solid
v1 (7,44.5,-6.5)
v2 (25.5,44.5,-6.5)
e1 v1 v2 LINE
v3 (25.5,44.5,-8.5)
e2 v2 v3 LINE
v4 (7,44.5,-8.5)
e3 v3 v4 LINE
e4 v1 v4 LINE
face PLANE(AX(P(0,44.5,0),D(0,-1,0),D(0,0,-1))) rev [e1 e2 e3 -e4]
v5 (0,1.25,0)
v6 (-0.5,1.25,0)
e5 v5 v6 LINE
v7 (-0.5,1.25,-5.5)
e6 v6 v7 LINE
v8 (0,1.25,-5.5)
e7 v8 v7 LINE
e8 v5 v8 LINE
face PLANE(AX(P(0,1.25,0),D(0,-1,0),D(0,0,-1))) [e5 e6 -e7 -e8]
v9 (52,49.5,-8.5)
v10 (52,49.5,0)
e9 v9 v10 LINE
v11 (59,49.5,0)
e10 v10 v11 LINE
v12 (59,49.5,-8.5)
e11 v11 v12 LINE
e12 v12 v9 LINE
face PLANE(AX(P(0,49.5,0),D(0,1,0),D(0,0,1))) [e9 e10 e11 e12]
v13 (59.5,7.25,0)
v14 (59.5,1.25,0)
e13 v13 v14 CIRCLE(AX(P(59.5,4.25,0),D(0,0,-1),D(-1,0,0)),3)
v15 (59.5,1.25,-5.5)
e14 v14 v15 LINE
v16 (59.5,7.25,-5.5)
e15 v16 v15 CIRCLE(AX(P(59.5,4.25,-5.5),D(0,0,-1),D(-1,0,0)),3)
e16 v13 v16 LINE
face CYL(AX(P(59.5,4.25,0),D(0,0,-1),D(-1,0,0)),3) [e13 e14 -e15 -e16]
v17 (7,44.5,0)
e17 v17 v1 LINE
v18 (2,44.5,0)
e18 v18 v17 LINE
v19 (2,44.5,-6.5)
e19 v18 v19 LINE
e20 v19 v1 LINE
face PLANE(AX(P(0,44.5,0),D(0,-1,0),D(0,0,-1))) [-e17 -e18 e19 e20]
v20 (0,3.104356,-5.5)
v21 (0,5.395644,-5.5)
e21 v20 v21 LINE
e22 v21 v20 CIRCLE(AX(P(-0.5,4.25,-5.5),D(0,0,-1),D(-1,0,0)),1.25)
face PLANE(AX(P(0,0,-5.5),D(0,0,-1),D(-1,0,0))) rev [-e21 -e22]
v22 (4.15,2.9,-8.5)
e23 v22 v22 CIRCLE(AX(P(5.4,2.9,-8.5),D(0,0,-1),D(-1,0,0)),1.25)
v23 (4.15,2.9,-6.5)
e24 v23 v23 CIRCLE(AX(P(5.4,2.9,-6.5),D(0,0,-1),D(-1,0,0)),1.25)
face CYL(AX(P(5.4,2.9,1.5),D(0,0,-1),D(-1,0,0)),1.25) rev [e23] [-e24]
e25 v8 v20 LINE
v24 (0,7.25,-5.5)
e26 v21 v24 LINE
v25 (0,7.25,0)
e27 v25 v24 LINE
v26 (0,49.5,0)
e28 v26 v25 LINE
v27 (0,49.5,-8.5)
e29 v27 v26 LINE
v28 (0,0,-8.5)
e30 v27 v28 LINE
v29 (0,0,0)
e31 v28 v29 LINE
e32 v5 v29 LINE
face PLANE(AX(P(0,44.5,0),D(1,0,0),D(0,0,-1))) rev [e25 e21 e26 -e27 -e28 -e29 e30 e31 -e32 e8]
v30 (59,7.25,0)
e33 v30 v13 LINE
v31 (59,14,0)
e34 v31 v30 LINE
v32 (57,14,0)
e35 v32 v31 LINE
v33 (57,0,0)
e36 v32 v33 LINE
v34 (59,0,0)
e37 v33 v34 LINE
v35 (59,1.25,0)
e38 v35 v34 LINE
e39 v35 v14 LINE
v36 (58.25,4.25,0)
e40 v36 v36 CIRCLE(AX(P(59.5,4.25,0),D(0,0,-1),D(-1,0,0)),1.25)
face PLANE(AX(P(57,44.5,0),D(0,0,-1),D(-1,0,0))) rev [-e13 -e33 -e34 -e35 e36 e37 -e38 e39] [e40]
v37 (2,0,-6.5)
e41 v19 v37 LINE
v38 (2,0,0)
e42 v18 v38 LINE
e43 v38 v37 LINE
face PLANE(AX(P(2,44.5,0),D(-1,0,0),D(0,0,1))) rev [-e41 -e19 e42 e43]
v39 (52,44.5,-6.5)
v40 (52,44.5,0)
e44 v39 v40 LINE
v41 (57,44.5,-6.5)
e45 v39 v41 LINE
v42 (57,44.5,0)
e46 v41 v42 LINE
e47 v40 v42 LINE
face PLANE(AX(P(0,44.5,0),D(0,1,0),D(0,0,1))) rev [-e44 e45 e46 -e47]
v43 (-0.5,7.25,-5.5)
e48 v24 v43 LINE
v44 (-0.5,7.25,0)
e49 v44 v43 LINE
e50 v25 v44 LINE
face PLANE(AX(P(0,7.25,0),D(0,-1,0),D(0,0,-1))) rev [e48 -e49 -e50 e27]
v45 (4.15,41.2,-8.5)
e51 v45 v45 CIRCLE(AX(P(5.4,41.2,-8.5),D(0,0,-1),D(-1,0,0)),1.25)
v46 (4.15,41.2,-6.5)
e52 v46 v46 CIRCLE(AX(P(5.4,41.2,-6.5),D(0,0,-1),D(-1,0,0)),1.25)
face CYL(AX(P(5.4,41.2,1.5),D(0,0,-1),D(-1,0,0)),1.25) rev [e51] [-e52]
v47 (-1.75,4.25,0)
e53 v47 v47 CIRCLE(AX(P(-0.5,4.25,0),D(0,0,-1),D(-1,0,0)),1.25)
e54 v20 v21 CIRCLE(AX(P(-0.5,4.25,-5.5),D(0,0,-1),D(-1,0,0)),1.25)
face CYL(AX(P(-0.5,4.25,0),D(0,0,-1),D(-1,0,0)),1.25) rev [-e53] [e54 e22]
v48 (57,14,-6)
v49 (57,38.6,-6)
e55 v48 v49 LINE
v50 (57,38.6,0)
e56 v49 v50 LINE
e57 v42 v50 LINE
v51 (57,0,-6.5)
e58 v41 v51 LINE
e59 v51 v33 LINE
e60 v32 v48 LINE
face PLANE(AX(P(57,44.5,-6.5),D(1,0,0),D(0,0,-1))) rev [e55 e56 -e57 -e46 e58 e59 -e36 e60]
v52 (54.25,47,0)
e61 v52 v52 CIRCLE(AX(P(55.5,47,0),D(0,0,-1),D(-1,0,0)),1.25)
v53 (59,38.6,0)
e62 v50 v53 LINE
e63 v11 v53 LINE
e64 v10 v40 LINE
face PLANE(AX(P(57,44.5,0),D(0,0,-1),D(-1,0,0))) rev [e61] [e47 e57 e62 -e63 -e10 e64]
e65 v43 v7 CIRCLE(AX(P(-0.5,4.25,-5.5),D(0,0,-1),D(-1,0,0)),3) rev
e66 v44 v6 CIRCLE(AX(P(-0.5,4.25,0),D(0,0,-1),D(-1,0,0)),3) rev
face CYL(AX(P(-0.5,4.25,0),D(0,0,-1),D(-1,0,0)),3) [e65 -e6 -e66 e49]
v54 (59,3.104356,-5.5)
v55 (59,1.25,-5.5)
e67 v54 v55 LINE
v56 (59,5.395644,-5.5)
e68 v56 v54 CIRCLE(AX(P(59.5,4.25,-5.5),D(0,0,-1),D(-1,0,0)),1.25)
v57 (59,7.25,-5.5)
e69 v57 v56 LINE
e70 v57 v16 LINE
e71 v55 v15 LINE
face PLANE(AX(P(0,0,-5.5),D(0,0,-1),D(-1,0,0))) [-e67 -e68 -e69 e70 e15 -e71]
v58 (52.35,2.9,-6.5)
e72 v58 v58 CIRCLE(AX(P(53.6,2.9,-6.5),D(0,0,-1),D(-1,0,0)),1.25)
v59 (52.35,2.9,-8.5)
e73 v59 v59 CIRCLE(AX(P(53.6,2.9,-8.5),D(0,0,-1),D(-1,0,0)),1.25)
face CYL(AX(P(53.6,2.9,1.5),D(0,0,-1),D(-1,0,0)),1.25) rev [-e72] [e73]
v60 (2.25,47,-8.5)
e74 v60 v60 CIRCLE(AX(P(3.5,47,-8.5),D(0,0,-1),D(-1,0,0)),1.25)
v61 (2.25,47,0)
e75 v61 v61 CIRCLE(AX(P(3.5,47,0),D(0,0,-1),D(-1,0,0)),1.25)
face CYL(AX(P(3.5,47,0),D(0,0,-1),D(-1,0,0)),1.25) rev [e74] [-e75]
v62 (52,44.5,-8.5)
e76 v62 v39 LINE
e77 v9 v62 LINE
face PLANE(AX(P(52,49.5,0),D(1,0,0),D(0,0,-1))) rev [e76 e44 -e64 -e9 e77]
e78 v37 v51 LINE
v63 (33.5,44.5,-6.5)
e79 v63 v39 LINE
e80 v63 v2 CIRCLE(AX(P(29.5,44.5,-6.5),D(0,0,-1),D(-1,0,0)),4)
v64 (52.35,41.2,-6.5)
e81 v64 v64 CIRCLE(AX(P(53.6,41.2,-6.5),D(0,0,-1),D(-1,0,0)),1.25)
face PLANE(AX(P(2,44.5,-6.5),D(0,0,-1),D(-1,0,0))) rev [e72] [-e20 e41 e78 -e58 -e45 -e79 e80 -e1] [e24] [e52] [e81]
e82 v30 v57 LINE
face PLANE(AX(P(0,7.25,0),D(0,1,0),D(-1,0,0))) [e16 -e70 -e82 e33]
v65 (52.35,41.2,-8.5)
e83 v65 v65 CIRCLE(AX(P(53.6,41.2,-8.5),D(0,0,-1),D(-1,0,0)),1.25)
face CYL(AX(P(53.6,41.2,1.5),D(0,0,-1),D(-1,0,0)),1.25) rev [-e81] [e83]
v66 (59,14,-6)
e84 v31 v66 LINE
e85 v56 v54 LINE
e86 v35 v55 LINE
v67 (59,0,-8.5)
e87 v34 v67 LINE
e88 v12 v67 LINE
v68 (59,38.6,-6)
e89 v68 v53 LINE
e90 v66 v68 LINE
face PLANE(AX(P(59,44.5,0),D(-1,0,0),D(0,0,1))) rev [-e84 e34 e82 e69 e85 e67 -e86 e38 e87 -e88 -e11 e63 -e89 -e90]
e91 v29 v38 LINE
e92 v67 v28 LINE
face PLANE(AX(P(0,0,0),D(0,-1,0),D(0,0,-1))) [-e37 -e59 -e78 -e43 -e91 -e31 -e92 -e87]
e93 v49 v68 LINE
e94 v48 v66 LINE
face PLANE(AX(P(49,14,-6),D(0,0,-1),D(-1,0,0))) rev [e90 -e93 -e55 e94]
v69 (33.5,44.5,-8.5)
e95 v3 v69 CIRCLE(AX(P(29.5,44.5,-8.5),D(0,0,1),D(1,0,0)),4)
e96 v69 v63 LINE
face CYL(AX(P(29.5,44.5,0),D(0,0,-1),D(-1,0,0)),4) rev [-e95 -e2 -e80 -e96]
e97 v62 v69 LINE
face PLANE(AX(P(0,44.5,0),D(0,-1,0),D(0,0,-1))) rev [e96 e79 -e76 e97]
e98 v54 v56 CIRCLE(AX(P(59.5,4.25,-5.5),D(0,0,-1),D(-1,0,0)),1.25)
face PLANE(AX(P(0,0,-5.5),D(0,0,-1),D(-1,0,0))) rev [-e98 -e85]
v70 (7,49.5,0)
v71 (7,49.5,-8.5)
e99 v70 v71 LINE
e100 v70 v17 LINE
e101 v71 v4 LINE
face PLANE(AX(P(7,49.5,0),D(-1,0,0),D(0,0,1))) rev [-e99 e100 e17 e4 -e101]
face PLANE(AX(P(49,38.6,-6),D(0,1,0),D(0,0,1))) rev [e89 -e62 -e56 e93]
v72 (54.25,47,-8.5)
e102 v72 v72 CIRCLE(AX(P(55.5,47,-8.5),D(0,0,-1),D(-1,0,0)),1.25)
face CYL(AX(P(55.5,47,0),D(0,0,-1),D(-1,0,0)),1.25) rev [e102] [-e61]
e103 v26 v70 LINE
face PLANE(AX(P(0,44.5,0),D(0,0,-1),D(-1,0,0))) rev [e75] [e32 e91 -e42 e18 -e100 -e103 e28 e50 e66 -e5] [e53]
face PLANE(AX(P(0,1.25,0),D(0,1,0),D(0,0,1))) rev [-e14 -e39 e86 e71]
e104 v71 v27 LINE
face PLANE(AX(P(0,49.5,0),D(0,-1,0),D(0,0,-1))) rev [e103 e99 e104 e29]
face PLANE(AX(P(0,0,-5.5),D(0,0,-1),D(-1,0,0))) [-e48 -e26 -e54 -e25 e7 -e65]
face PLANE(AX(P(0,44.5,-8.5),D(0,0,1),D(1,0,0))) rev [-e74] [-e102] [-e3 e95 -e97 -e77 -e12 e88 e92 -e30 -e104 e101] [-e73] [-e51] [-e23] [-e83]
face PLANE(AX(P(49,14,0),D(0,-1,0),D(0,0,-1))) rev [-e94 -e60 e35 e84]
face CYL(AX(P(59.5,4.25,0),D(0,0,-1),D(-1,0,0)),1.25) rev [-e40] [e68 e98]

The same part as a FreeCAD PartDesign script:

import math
import FreeCAD as App
import Part
import Sketcher

V = App.Vector


def add_polygon(sketch, points):
    """Adds a closed chain of lines whose ends are joined by coincident constraints."""
    first, n = sketch.GeometryCount, len(points)
    for a, b in zip(points, points[1:] + points[:1]):
        sketch.addGeometry(Part.LineSegment(App.Vector(*a, 0), App.Vector(*b, 0)), False)
    for i in range(n):
        sketch.addConstraint(Sketcher.Constraint("Coincident", first + i, 2, first + (i + 1) % n, 1))

doc = App.newDocument("Part")
body = doc.addObject("PartDesign::Body", "Body")

# Sketch on XZ plane
sketch1 = body.newObject("Sketcher::SketchObject", "Sketch")
sketch1.AttachmentSupport = (doc.getObject("XZ_Plane"), [""])
sketch1.MapMode = "FlatFace"
add_polygon(sketch1, [(0, 0), (2, 0), (2, -6.5), (57, -6.5), (57, 0), (59, 0), (59, -8.5), (0, -8.5)])  # lines 0-7
sketch1.addConstraint(Sketcher.Constraint("Horizontal", 0))
sketch1.addConstraint(Sketcher.Constraint("Vertical", 1))
sketch1.addConstraint(Sketcher.Constraint("Horizontal", 2))
sketch1.addConstraint(Sketcher.Constraint("Vertical", 3))
sketch1.addConstraint(Sketcher.Constraint("Horizontal", 4))
sketch1.addConstraint(Sketcher.Constraint("Vertical", 5))
sketch1.addConstraint(Sketcher.Constraint("Horizontal", 6))
sketch1.addConstraint(Sketcher.Constraint("Vertical", 7))
sketch1.addConstraint(Sketcher.Constraint("Coincident", 7, 2, -1, 1))
sketch1.addConstraint(Sketcher.Constraint("PointOnObject", 3, 2, -1))
sketch1.addConstraint(Sketcher.Constraint("Equal", 0, 4))
sketch1.addConstraint(Sketcher.Constraint("DistanceX", 0, 1, 0, 2, 2.0))
sketch1.addConstraint(Sketcher.Constraint("DistanceX", 2, 1, 2, 2, 55.0))
sketch1.addConstraint(Sketcher.Constraint("DistanceY", 1, 2, 1, 1, 6.5))
sketch1.addConstraint(Sketcher.Constraint("DistanceY", 5, 2, 5, 1, 8.5))
pad1 = body.newObject("PartDesign::Pad", "Pad")
pad1.Profile = sketch1
pad1.Length = 44.5
pad1.Reversed = True

# Sketch on YZ plane
sketch2 = body.newObject("Sketcher::SketchObject", "Sketch001")
sketch2.AttachmentSupport = (doc.getObject("YZ_Plane"), [""])
sketch2.MapMode = "FlatFace"
sketch2.AttachmentOffset = App.Placement(V(0, 0, 59), App.Rotation())
add_polygon(sketch2, [(38.6, 0), (14, 0), (14, -6), (38.6, -6)])  # lines 0-3
sketch2.addConstraint(Sketcher.Constraint("Horizontal", 0))
sketch2.addConstraint(Sketcher.Constraint("Vertical", 1))
sketch2.addConstraint(Sketcher.Constraint("Horizontal", 2))
sketch2.addConstraint(Sketcher.Constraint("Vertical", 3))
sketch2.addConstraint(Sketcher.Constraint("PointOnObject", 0, 2, -1))
sketch2.addConstraint(Sketcher.Constraint("DistanceY", 1, 2, 1, 1, 6.0))
sketch2.addConstraint(Sketcher.Constraint("DistanceX", 0, 2, 0, 1, 24.6))
sketch2.addConstraint(Sketcher.Constraint("DistanceX", -1, 1, 0, 2, 14.0))
pocket1 = body.newObject("PartDesign::Pocket", "Pocket")
pocket1.Profile = sketch2
pocket1.Length = 10

# Sketch on XY plane
sketch3 = body.newObject("Sketcher::SketchObject", "Sketch002")
sketch3.AttachmentSupport = (doc.getObject("XY_Plane"), [""])
sketch3.MapMode = "FlatFace"
sketch3.AttachmentOffset = App.Placement(V(0, 0, -8.5), App.Rotation())
sketch3.addGeometry(Part.LineSegment(V(59, 5.395644, 0), V(59, 7.25, 0)), False)
sketch3.addGeometry(Part.LineSegment(V(59, 7.25, 0), V(59.5, 7.25, 0)), False)
sketch3.addGeometry(Part.ArcOfCircle(Part.Circle(V(59.5, 4.25, 0), V(0, 0, 1), 3), math.radians(-90), math.radians(90)), False)
sketch3.addGeometry(Part.LineSegment(V(59.5, 1.25, 0), V(59, 1.25, 0)), False)
sketch3.addGeometry(Part.LineSegment(V(59, 1.25, 0), V(59, 3.104356, 0)), False)
sketch3.addGeometry(Part.ArcOfCircle(Part.Circle(V(59.5, 4.25, 0), V(0, 0, 1), 1.25), math.radians(-113.578178), math.radians(113.578178)), False)
sketch3.addGeometry(Part.LineSegment(V(-0.5, 7.25, 0), V(0, 7.25, 0)), False)
sketch3.addGeometry(Part.LineSegment(V(0, 7.25, 0), V(0, 5.395644, 0)), False)
sketch3.addGeometry(Part.ArcOfCircle(Part.Circle(V(-0.5, 4.25, 0), V(0, 0, 1), 1.25), math.radians(66.421822), math.radians(180)), False)
sketch3.addGeometry(Part.ArcOfCircle(Part.Circle(V(-0.5, 4.25, 0), V(0, 0, 1), 1.25), math.radians(180), math.radians(293.578178)), False)
sketch3.addGeometry(Part.LineSegment(V(0, 3.104356, 0), V(0, 1.25, 0)), False)
sketch3.addGeometry(Part.LineSegment(V(0, 1.25, 0), V(-0.5, 1.25, 0)), False)
sketch3.addGeometry(Part.ArcOfCircle(Part.Circle(V(-0.5, 4.25, 0), V(0, 0, 1), 3), math.radians(90), math.radians(270)), False)
sketch3.addConstraint(Sketcher.Constraint("Coincident", 0, 2, 1, 1))
sketch3.addConstraint(Sketcher.Constraint("Tangent", 1, 2, 2, 2))
sketch3.addConstraint(Sketcher.Constraint("Tangent", 2, 1, 3, 1))
sketch3.addConstraint(Sketcher.Constraint("Coincident", 3, 2, 4, 1))
sketch3.addConstraint(Sketcher.Constraint("Coincident", 4, 2, 5, 1))
sketch3.addConstraint(Sketcher.Constraint("Coincident", 5, 2, 0, 1))
sketch3.addConstraint(Sketcher.Constraint("Coincident", 6, 2, 7, 1))
sketch3.addConstraint(Sketcher.Constraint("Coincident", 7, 2, 8, 1))
sketch3.addConstraint(Sketcher.Constraint("Tangent", 8, 2, 9, 1))
sketch3.addConstraint(Sketcher.Constraint("Coincident", 9, 2, 10, 1))
sketch3.addConstraint(Sketcher.Constraint("Coincident", 10, 2, 11, 1))
sketch3.addConstraint(Sketcher.Constraint("Tangent", 11, 2, 12, 2))
sketch3.addConstraint(Sketcher.Constraint("Tangent", 12, 1, 6, 1))
sketch3.addConstraint(Sketcher.Constraint("Vertical", 0))
sketch3.addConstraint(Sketcher.Constraint("Horizontal", 1))
sketch3.addConstraint(Sketcher.Constraint("Horizontal", 3))
sketch3.addConstraint(Sketcher.Constraint("Vertical", 4))
sketch3.addConstraint(Sketcher.Constraint("Horizontal", 6))
sketch3.addConstraint(Sketcher.Constraint("Vertical", 7))
sketch3.addConstraint(Sketcher.Constraint("Vertical", 10))
sketch3.addConstraint(Sketcher.Constraint("Horizontal", 11))
sketch3.addConstraint(Sketcher.Constraint("Coincident", 5, 3, 2, 3))
sketch3.addConstraint(Sketcher.Constraint("Coincident", 12, 3, 8, 3))
sketch3.addConstraint(Sketcher.Constraint("Equal", 5, 8))
sketch3.addConstraint(Sketcher.Constraint("Equal", 8, 9))
sketch3.addConstraint(Sketcher.Constraint("Equal", 2, 12))
sketch3.addConstraint(Sketcher.Constraint("PointOnObject", 6, 2, -2))
sketch3.addConstraint(Sketcher.Constraint("PointOnObject", 9, 2, -2))
sketch3.addConstraint(Sketcher.Constraint("Horizontal", 5, 3, 8, 3))
sketch3.addConstraint(Sketcher.Constraint("Horizontal", 5, 2, 7, 2))
sketch3.addConstraint(Sketcher.Constraint("Horizontal", 12, 3, 8, 2))
sketch3.addConstraint(Sketcher.Constraint("Horizontal", 4, 2, 9, 2))
sketch3.addConstraint(Sketcher.Constraint("Radius", 2, 3.0))
sketch3.addConstraint(Sketcher.Constraint("Radius", 5, 1.25))
sketch3.addConstraint(Sketcher.Constraint("DistanceX", 1, 1, 1, 2, 0.5))
sketch3.addConstraint(Sketcher.Constraint("DistanceX", -1, 1, 0, 2, 59.0))
sketch3.addConstraint(Sketcher.Constraint("DistanceY", -1, 1, 2, 3, 4.25))
pad2 = body.newObject("PartDesign::Pad", "Pad001")
pad2.Profile = sketch3
pad2.Length = 8.5

# Sketch on XY plane
sketch4 = body.newObject("Sketcher::SketchObject", "Sketch003")
sketch4.AttachmentSupport = (doc.getObject("XY_Plane"), [""])
sketch4.MapMode = "FlatFace"
sketch4.AttachmentOffset = App.Placement(V(0, 0, -8.5), App.Rotation())
sketch4.addGeometry(Part.ArcOfCircle(Part.Circle(V(59.5, 4.25, 0), V(0, 0, 1), 1.25), math.radians(113.578179), math.radians(180)), False)
sketch4.addGeometry(Part.LineSegment(V(59, 5.395644, 0), V(59, 3.104356, 0)), False)
sketch4.addGeometry(Part.ArcOfCircle(Part.Circle(V(59.5, 4.25, 0), V(0, 0, 1), 1.25), math.radians(180), math.radians(246.421821)), False)
sketch4.addGeometry(Part.LineSegment(V(59, 3.104356, 0), V(59, 5.395644, 0)), False)
sketch4.addGeometry(Part.ArcOfCircle(Part.Circle(V(59.5, 4.25, 0), V(0, 0, 1), 1.25), math.radians(-113.578178), math.radians(113.578178)), False)
sketch4.addGeometry(Part.ArcOfCircle(Part.Circle(V(-0.5, 4.25, 0), V(0, 0, 1), 1.25), math.radians(66.421822), math.radians(180)), False)
sketch4.addGeometry(Part.LineSegment(V(0, 5.395644, 0), V(0, 3.104356, 0)), False)
sketch4.addGeometry(Part.ArcOfCircle(Part.Circle(V(-0.5, 4.25, 0), V(0, 0, 1), 1.25), math.radians(180), math.radians(293.578178)), False)
sketch4.addGeometry(Part.LineSegment(V(0, 3.104356, 0), V(0, 5.395644, 0)), False)
sketch4.addGeometry(Part.ArcOfCircle(Part.Circle(V(-0.5, 4.25, 0), V(0, 0, 1), 1.25), math.radians(-66.421822), math.radians(66.421822)), False)
sketch4.addConstraint(Sketcher.Constraint("Coincident", 0, 1, 1, 1))
sketch4.addConstraint(Sketcher.Constraint("Coincident", 1, 2, 2, 2))
sketch4.addConstraint(Sketcher.Constraint("Tangent", 2, 1, 0, 2))
sketch4.addConstraint(Sketcher.Constraint("Coincident", 3, 1, 4, 1))
sketch4.addConstraint(Sketcher.Constraint("Coincident", 4, 2, 3, 2))
sketch4.addConstraint(Sketcher.Constraint("Coincident", 5, 1, 6, 1))
sketch4.addConstraint(Sketcher.Constraint("Coincident", 6, 2, 7, 2))
sketch4.addConstraint(Sketcher.Constraint("Tangent", 7, 1, 5, 2))
sketch4.addConstraint(Sketcher.Constraint("Coincident", 8, 1, 9, 1))
sketch4.addConstraint(Sketcher.Constraint("Coincident", 9, 2, 8, 2))
sketch4.addConstraint(Sketcher.Constraint("Vertical", 1))
sketch4.addConstraint(Sketcher.Constraint("Vertical", 3))
sketch4.addConstraint(Sketcher.Constraint("Vertical", 6))
sketch4.addConstraint(Sketcher.Constraint("Vertical", 8))
sketch4.addConstraint(Sketcher.Constraint("Coincident", 4, 3, 0, 3))
sketch4.addConstraint(Sketcher.Constraint("Coincident", 9, 3, 5, 3))
sketch4.addConstraint(Sketcher.Constraint("Coincident", 3, 1, 1, 2))
sketch4.addConstraint(Sketcher.Constraint("Coincident", 8, 1, 6, 2))
sketch4.addConstraint(Sketcher.Constraint("Equal", 0, 2))
sketch4.addConstraint(Sketcher.Constraint("Equal", 4, 5))
sketch4.addConstraint(Sketcher.Constraint("Equal", 5, 7))
sketch4.addConstraint(Sketcher.Constraint("PointOnObject", 5, 1, -2))
sketch4.addConstraint(Sketcher.Constraint("Horizontal", 4, 3, 5, 3))
sketch4.addConstraint(Sketcher.Constraint("Horizontal", 9, 3, 2, 1))
sketch4.addConstraint(Sketcher.Constraint("Horizontal", 4, 2, 5, 1))
sketch4.addConstraint(Sketcher.Constraint("Horizontal", 2, 1, 7, 1))
sketch4.addConstraint(Sketcher.Constraint("Radius", 0, 1.25))
sketch4.addConstraint(Sketcher.Constraint("DistanceX", -1, 1, 0, 1, 59.0))
sketch4.addConstraint(Sketcher.Constraint("DistanceX", 5, 3, 4, 3, 60.0))
sketch4.addConstraint(Sketcher.Constraint("DistanceY", -1, 1, 0, 3, 4.25))
pocket2 = body.newObject("PartDesign::Pocket", "Pocket001")
pocket2.Profile = sketch4
pocket2.Length = 11
pocket2.Reversed = True

# Sketch on XZ plane
sketch5 = body.newObject("Sketcher::SketchObject", "Sketch004")
sketch5.AttachmentSupport = (doc.getObject("XZ_Plane"), [""])
sketch5.MapMode = "FlatFace"
sketch5.AttachmentOffset = App.Placement(V(0, 0, -44.5), App.Rotation())
add_polygon(sketch5, [(0, -8.5), (0, 0), (7, 0), (7, -8.5)])  # lines 0-3
add_polygon(sketch5, [(52, -8.5), (52, 0), (59, 0), (59, -8.5)])  # lines 4-7
sketch5.addConstraint(Sketcher.Constraint("Vertical", 0))
sketch5.addConstraint(Sketcher.Constraint("Horizontal", 1))
sketch5.addConstraint(Sketcher.Constraint("Vertical", 2))
sketch5.addConstraint(Sketcher.Constraint("Horizontal", 3))
sketch5.addConstraint(Sketcher.Constraint("Vertical", 4))
sketch5.addConstraint(Sketcher.Constraint("Horizontal", 5))
sketch5.addConstraint(Sketcher.Constraint("Vertical", 6))
sketch5.addConstraint(Sketcher.Constraint("Horizontal", 7))
sketch5.addConstraint(Sketcher.Constraint("Coincident", 0, 2, -1, 1))
sketch5.addConstraint(Sketcher.Constraint("PointOnObject", 4, 2, -1))
sketch5.addConstraint(Sketcher.Constraint("Horizontal", 3, 2, 6, 2))
sketch5.addConstraint(Sketcher.Constraint("Equal", 3, 5))
sketch5.addConstraint(Sketcher.Constraint("DistanceX", 1, 1, 1, 2, 7.0))
sketch5.addConstraint(Sketcher.Constraint("DistanceY", 0, 1, 0, 2, 8.5))
sketch5.addConstraint(Sketcher.Constraint("DistanceX", -1, 1, 4, 2, 52.0))
pad3 = body.newObject("PartDesign::Pad", "Pad002")
pad3.Profile = sketch5
pad3.Length = 5
pad3.Reversed = True

# Sketch on XY plane
sketch6 = body.newObject("Sketcher::SketchObject", "Sketch005")
sketch6.AttachmentSupport = (doc.getObject("XY_Plane"), [""])
sketch6.MapMode = "FlatFace"
sketch6.AttachmentOffset = App.Placement(V(0, 0, -8.5), App.Rotation())
sketch6.addGeometry(Part.Circle(V(55.5, 47, 0), V(0, 0, 1), 1.25), False)
sketch6.addGeometry(Part.Circle(V(3.5, 47, 0), V(0, 0, 1), 1.25), False)
sketch6.addConstraint(Sketcher.Constraint("Equal", 0, 1))
sketch6.addConstraint(Sketcher.Constraint("Horizontal", 0, 3, 1, 3))
sketch6.addConstraint(Sketcher.Constraint("Diameter", 0, 2.5))
sketch6.addConstraint(Sketcher.Constraint("DistanceY", -1, 1, 0, 3, 47.0))
sketch6.addConstraint(Sketcher.Constraint("DistanceX", 1, 3, 0, 3, 52.0))
sketch6.addConstraint(Sketcher.Constraint("DistanceX", -1, 1, 0, 3, 55.5))
pocket3 = body.newObject("PartDesign::Pocket", "Pocket002")
pocket3.Profile = sketch6
pocket3.Type = "ThroughAll"
pocket3.Reversed = True

# Sketch on XY plane
sketch7 = body.newObject("Sketcher::SketchObject", "Sketch006")
sketch7.AttachmentSupport = (doc.getObject("XY_Plane"), [""])
sketch7.MapMode = "FlatFace"
sketch7.AttachmentOffset = App.Placement(V(0, 0, -8.5), App.Rotation())
sketch7.addGeometry(Part.Circle(V(53.6, 2.9, 0), V(0, 0, 1), 1.25), False)
sketch7.addGeometry(Part.Circle(V(5.4, 2.9, 0), V(0, 0, 1), 1.25), False)
sketch7.addGeometry(Part.Circle(V(53.6, 41.2, 0), V(0, 0, 1), 1.25), False)
sketch7.addGeometry(Part.Circle(V(5.4, 41.2, 0), V(0, 0, 1), 1.25), False)
sketch7.addConstraint(Sketcher.Constraint("Equal", 0, 1))
sketch7.addConstraint(Sketcher.Constraint("Equal", 1, 2))
sketch7.addConstraint(Sketcher.Constraint("Equal", 2, 3))
sketch7.addConstraint(Sketcher.Constraint("Horizontal", 0, 3, 1, 3))
sketch7.addConstraint(Sketcher.Constraint("Horizontal", 2, 3, 3, 3))
sketch7.addConstraint(Sketcher.Constraint("Vertical", 0, 3, 2, 3))
sketch7.addConstraint(Sketcher.Constraint("Vertical", 1, 3, 3, 3))
sketch7.addConstraint(Sketcher.Constraint("Diameter", 0, 2.5))
sketch7.addConstraint(Sketcher.Constraint("DistanceX", -1, 1, 0, 3, 53.6))
sketch7.addConstraint(Sketcher.Constraint("DistanceY", -1, 1, 0, 3, 2.9))
sketch7.addConstraint(Sketcher.Constraint("DistanceX", -1, 1, 1, 3, 5.4))
sketch7.addConstraint(Sketcher.Constraint("DistanceY", -1, 1, 2, 3, 41.2))
pocket4 = body.newObject("PartDesign::Pocket", "Pocket003")
pocket4.Profile = sketch7
pocket4.Length = 10
pocket4.Reversed = True

# Sketch on XY plane
sketch8 = body.newObject("Sketcher::SketchObject", "Sketch007")
sketch8.AttachmentSupport = (doc.getObject("XY_Plane"), [""])
sketch8.MapMode = "FlatFace"
sketch8.AttachmentOffset = App.Placement(V(0, 0, -8.5), App.Rotation())
sketch8.addGeometry(Part.Circle(V(29.5, 44.5, 0), V(0, 0, 1), 4), False)
sketch8.addConstraint(Sketcher.Constraint("Diameter", 0, 8.0))
sketch8.addConstraint(Sketcher.Constraint("DistanceX", -1, 1, 0, 3, 29.5))
sketch8.addConstraint(Sketcher.Constraint("DistanceY", -1, 1, 0, 3, 44.5))
pocket5 = body.newObject("PartDesign::Pocket", "Pocket004")
pocket5.Profile = sketch8
pocket5.Type = "ThroughAll"
pocket5.Reversed = True

# Sketch on XY plane
sketch9 = body.newObject("Sketcher::SketchObject", "Sketch008")
sketch9.AttachmentSupport = (doc.getObject("XY_Plane"), [""])
sketch9.MapMode = "FlatFace"
sketch9.AttachmentOffset = App.Placement(V(0, 0, -8.5), App.Rotation())
sketch9.addGeometry(Part.LineSegment(V(59, 5.395644, 0), V(59, 7.25, 0)), False)
sketch9.addGeometry(Part.LineSegment(V(59, 7.25, 0), V(59.5, 7.25, 0)), False)
sketch9.addGeometry(Part.ArcOfCircle(Part.Circle(V(59.5, 4.25, 0), V(0, 0, 1), 3), math.radians(-90), math.radians(90)), False)
sketch9.addGeometry(Part.LineSegment(V(59.5, 1.25, 0), V(59, 1.25, 0)), False)
sketch9.addGeometry(Part.LineSegment(V(59, 1.25, 0), V(59, 3.104356, 0)), False)
sketch9.addGeometry(Part.ArcOfCircle(Part.Circle(V(59.5, 4.25, 0), V(0, 0, 1), 1.25), math.radians(-113.578178), math.radians(113.578178)), False)
sketch9.addGeometry(Part.LineSegment(V(-0.5, 7.25, 0), V(0, 7.25, 0)), False)
sketch9.addGeometry(Part.LineSegment(V(0, 7.25, 0), V(0, 5.395644, 0)), False)
sketch9.addGeometry(Part.ArcOfCircle(Part.Circle(V(-0.5, 4.25, 0), V(0, 0, 1), 1.25), math.radians(66.421822), math.radians(180)), False)
sketch9.addGeometry(Part.ArcOfCircle(Part.Circle(V(-0.5, 4.25, 0), V(0, 0, 1), 1.25), math.radians(180), math.radians(293.578178)), False)
sketch9.addGeometry(Part.LineSegment(V(0, 3.104356, 0), V(0, 1.25, 0)), False)
sketch9.addGeometry(Part.LineSegment(V(0, 1.25, 0), V(-0.5, 1.25, 0)), False)
sketch9.addGeometry(Part.ArcOfCircle(Part.Circle(V(-0.5, 4.25, 0), V(0, 0, 1), 3), math.radians(90), math.radians(270)), False)
sketch9.addConstraint(Sketcher.Constraint("Coincident", 0, 2, 1, 1))
sketch9.addConstraint(Sketcher.Constraint("Tangent", 1, 2, 2, 2))
sketch9.addConstraint(Sketcher.Constraint("Tangent", 2, 1, 3, 1))
sketch9.addConstraint(Sketcher.Constraint("Coincident", 3, 2, 4, 1))
sketch9.addConstraint(Sketcher.Constraint("Coincident", 4, 2, 5, 1))
sketch9.addConstraint(Sketcher.Constraint("Coincident", 5, 2, 0, 1))
sketch9.addConstraint(Sketcher.Constraint("Coincident", 6, 2, 7, 1))
sketch9.addConstraint(Sketcher.Constraint("Coincident", 7, 2, 8, 1))
sketch9.addConstraint(Sketcher.Constraint("Tangent", 8, 2, 9, 1))
sketch9.addConstraint(Sketcher.Constraint("Coincident", 9, 2, 10, 1))
sketch9.addConstraint(Sketcher.Constraint("Coincident", 10, 2, 11, 1))
sketch9.addConstraint(Sketcher.Constraint("Tangent", 11, 2, 12, 2))
sketch9.addConstraint(Sketcher.Constraint("Tangent", 12, 1, 6, 1))
sketch9.addConstraint(Sketcher.Constraint("Vertical", 0))
sketch9.addConstraint(Sketcher.Constraint("Horizontal", 1))
sketch9.addConstraint(Sketcher.Constraint("Horizontal", 3))
sketch9.addConstraint(Sketcher.Constraint("Vertical", 4))
sketch9.addConstraint(Sketcher.Constraint("Horizontal", 6))
sketch9.addConstraint(Sketcher.Constraint("Vertical", 7))
sketch9.addConstraint(Sketcher.Constraint("Vertical", 10))
sketch9.addConstraint(Sketcher.Constraint("Horizontal", 11))
sketch9.addConstraint(Sketcher.Constraint("Coincident", 5, 3, 2, 3))
sketch9.addConstraint(Sketcher.Constraint("Coincident", 12, 3, 8, 3))
sketch9.addConstraint(Sketcher.Constraint("Equal", 5, 8))
sketch9.addConstraint(Sketcher.Constraint("Equal", 8, 9))
sketch9.addConstraint(Sketcher.Constraint("Equal", 2, 12))
sketch9.addConstraint(Sketcher.Constraint("PointOnObject", 6, 2, -2))
sketch9.addConstraint(Sketcher.Constraint("PointOnObject", 9, 2, -2))
sketch9.addConstraint(Sketcher.Constraint("Horizontal", 5, 3, 8, 3))
sketch9.addConstraint(Sketcher.Constraint("Horizontal", 5, 2, 7, 2))
sketch9.addConstraint(Sketcher.Constraint("Horizontal", 12, 3, 8, 2))
sketch9.addConstraint(Sketcher.Constraint("Horizontal", 4, 2, 9, 2))
sketch9.addConstraint(Sketcher.Constraint("Radius", 2, 3.0))
sketch9.addConstraint(Sketcher.Constraint("Radius", 5, 1.25))
sketch9.addConstraint(Sketcher.Constraint("DistanceX", 1, 1, 1, 2, 0.5))
sketch9.addConstraint(Sketcher.Constraint("DistanceX", -1, 1, 0, 2, 59.0))
sketch9.addConstraint(Sketcher.Constraint("DistanceY", -1, 1, 2, 3, 4.25))
pocket6 = body.newObject("PartDesign::Pocket", "Pocket005")
pocket6.Profile = sketch9
pocket6.Length = 3
pocket6.Reversed = True

# Sketch on XY plane
sketch10 = body.newObject("Sketcher::SketchObject", "Sketch009")
sketch10.AttachmentSupport = (doc.getObject("XY_Plane"), [""])
sketch10.MapMode = "FlatFace"
sketch10.AttachmentOffset = App.Placement(V(0, 0, -8.5), App.Rotation())
sketch10.addGeometry(Part.ArcOfCircle(Part.Circle(V(59.5, 4.25, 0), V(0, 0, 1), 1.25), math.radians(113.578178), math.radians(246.421822)), False)
sketch10.addGeometry(Part.LineSegment(V(59, 5.395644, 0), V(59, 3.104356, 0)), False)
sketch10.addGeometry(Part.LineSegment(V(0, 3.104356, 0), V(0, 5.395644, 0)), False)
sketch10.addGeometry(Part.ArcOfCircle(Part.Circle(V(-0.5, 4.25, 0), V(0, 0, 1), 1.25), math.radians(-66.421822), math.radians(66.421822)), False)
sketch10.addConstraint(Sketcher.Constraint("Coincident", 0, 1, 1, 1))
sketch10.addConstraint(Sketcher.Constraint("Coincident", 1, 2, 0, 2))
sketch10.addConstraint(Sketcher.Constraint("Coincident", 2, 1, 3, 1))
sketch10.addConstraint(Sketcher.Constraint("Coincident", 3, 2, 2, 2))
sketch10.addConstraint(Sketcher.Constraint("Vertical", 1))
sketch10.addConstraint(Sketcher.Constraint("Vertical", 2))
sketch10.addConstraint(Sketcher.Constraint("Equal", 0, 3))
sketch10.addConstraint(Sketcher.Constraint("PointOnObject", 2, 1, -2))
sketch10.addConstraint(Sketcher.Constraint("Horizontal", 0, 3, 3, 3))
sketch10.addConstraint(Sketcher.Constraint("Horizontal", 1, 2, 2, 1))
sketch10.addConstraint(Sketcher.Constraint("Radius", 0, 1.25))
sketch10.addConstraint(Sketcher.Constraint("DistanceX", -1, 1, 0, 1, 59.0))
sketch10.addConstraint(Sketcher.Constraint("DistanceX", 3, 3, 0, 3, 60.0))
sketch10.addConstraint(Sketcher.Constraint("DistanceY", -1, 1, 0, 3, 4.25))
pad4 = body.newObject("PartDesign::Pad", "Pad003")
pad4.Profile = sketch10
pad4.Length = 3

doc.recompute()
